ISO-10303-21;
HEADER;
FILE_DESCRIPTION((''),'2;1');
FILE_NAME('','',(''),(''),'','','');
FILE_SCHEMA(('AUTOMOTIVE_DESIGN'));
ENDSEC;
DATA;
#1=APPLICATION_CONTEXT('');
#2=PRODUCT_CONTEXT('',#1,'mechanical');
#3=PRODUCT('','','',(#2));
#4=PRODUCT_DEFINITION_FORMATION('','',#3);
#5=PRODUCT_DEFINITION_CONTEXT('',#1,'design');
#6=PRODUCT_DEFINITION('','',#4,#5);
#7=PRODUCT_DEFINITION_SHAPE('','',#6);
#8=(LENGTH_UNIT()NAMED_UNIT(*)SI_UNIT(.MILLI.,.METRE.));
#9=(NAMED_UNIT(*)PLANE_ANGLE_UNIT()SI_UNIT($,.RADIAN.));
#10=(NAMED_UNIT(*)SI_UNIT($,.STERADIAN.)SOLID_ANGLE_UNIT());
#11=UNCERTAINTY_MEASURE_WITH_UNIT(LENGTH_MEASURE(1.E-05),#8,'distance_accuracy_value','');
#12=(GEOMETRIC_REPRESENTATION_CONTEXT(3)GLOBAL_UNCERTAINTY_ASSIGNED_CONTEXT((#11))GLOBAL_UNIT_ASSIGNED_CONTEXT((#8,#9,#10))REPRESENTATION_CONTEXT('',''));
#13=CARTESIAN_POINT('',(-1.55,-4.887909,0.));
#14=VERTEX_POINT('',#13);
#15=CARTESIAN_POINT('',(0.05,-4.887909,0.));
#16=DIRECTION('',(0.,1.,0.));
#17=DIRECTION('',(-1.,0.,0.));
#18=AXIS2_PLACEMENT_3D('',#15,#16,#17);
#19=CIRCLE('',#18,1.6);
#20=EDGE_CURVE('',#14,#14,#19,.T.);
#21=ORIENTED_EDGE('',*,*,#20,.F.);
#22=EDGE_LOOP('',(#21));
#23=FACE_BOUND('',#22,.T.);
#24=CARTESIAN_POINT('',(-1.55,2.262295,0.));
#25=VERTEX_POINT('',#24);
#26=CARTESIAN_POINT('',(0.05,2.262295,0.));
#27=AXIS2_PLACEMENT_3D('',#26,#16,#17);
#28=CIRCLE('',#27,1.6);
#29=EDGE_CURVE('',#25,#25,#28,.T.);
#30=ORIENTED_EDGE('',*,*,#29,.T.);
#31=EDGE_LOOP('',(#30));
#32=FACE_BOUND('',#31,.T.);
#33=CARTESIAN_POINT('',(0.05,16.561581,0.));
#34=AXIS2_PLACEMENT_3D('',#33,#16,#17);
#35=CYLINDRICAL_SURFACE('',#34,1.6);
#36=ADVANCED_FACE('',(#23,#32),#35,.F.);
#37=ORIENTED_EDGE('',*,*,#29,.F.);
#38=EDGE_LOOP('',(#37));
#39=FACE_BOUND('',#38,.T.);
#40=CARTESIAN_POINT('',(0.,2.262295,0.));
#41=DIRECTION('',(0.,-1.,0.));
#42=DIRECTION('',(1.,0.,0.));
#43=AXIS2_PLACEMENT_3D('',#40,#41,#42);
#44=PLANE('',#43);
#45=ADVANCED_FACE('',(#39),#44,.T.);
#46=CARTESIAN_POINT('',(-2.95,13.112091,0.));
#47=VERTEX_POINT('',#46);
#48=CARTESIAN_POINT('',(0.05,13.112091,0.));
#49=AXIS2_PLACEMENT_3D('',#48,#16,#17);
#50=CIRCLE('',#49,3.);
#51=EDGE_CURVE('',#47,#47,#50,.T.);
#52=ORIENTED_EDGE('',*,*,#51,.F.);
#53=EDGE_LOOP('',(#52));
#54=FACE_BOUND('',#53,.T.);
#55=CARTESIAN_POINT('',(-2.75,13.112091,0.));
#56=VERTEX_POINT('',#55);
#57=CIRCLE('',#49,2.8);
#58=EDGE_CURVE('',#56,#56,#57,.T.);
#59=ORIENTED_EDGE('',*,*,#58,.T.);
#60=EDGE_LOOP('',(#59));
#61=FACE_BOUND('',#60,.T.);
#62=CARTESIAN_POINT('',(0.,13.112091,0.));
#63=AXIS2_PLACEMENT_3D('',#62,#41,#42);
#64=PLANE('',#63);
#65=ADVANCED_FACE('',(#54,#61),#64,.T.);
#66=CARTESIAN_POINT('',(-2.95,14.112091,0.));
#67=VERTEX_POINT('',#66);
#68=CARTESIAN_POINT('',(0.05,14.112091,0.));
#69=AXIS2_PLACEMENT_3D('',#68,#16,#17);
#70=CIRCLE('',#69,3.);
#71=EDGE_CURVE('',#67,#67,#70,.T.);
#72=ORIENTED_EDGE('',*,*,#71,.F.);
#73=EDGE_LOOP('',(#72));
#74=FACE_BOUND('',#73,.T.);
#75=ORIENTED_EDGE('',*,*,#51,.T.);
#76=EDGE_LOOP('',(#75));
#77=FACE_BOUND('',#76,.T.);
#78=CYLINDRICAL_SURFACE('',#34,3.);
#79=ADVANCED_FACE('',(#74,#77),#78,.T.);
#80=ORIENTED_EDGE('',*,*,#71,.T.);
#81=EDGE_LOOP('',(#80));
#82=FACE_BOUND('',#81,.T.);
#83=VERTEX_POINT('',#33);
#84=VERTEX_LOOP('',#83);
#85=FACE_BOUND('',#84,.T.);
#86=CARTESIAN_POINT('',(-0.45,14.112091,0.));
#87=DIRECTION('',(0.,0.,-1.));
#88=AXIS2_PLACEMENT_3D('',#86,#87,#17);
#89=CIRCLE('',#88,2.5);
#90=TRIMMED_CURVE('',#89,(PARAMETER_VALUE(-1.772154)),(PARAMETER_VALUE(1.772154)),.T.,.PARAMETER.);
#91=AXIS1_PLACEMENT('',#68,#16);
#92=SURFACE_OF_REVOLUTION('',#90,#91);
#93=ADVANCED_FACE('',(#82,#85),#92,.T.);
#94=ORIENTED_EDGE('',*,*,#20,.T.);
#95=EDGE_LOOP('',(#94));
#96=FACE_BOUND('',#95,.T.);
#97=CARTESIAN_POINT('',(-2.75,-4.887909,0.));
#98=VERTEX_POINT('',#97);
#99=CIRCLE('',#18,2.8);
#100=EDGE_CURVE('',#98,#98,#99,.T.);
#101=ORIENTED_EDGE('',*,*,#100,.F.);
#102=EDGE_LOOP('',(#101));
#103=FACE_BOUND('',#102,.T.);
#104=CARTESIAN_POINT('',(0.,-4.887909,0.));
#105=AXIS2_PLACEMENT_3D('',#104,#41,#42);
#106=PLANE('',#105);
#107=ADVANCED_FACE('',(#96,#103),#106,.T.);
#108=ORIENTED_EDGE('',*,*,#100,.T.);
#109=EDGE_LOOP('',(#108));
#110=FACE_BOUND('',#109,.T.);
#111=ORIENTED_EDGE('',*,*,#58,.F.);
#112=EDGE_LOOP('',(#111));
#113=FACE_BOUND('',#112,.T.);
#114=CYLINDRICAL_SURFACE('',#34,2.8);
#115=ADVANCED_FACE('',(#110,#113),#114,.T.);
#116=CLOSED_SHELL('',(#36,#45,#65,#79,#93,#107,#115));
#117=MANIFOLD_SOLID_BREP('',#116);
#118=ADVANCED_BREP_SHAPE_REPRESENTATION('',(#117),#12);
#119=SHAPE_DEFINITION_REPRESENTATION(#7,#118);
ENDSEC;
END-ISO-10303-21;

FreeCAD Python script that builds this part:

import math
import FreeCAD as App
import Part
import Sketcher
Q = App.Units.Quantity

doc = App.newDocument("Part")
params = doc.addObject("Spreadsheet::Sheet", "Params")
for row, (alias, value) in enumerate([
    ("sketch1_radius", "2.5 mm"),
    ("sketch1_height", "18 mm"),
    ("sketch1_height2", "1 mm"),
    ("sketch1_width", "0.2 mm"),
    ("sketch1_width2", "1.2 mm"),
    ("revolution_angle", "360 deg"),
], start=1):
    params.set(f"A{row}", alias)
    params.set(f"B{row}", "=" + value)
    params.setAlias(f"B{row}", alias)

body = doc.addObject("PartDesign::Body", "Body")

# Sketch on XY plane
sketch1 = doc.addObject("Sketcher::SketchObject", "Sketch")
body.addObject(sketch1)
sketch1.AttachmentSupport = (doc.XY_Plane, [""])
sketch1.MapMode = "FlatFace"
sketch1.addGeometry([
    Part.LineSegment(App.Vector(-2.95, 13.11, 0), App.Vector(-2.75, 13.11, 0)),  # 0
    Part.LineSegment(App.Vector(-2.75, 13.11, 0), App.Vector(-2.75, -4.89, 0)),  # 1
    Part.LineSegment(App.Vector(-2.75, -4.89, 0), App.Vector(-1.55, -4.89, 0)),  # 2
    Part.LineSegment(App.Vector(-1.55, -4.89, 0), App.Vector(-1.55, 2.26, 0)),  # 3
    Part.LineSegment(App.Vector(-1.55, 2.26, 0), App.Vector(0.05, 2.26, 0)),  # 4
    Part.LineSegment(App.Vector(0.05, 2.26, 0), App.Vector(0.05, 16.56, 0)),  # 5
    Part.ArcOfCircle(Part.Circle(App.Vector(-0.45, 14.11, 0), App.Vector(0, 0, 1), 2.5), math.radians(78), math.radians(180)),  # 6
    Part.LineSegment(App.Vector(-2.95, 14.11, 0), App.Vector(-2.95, 13.11, 0)),  # 7
], False)
sketch1.addGeometry(Part.LineSegment(App.Vector(0.05, 16.56, 0), App.Vector(0.05, -4.89, 0)), True)  # axis
sketch1.addConstraint([
    Sketcher.Constraint("Coincident", 0, 2, 1, 1),
    Sketcher.Constraint("Coincident", 1, 2, 2, 1),
    Sketcher.Constraint("Coincident", 2, 2, 3, 1),
    Sketcher.Constraint("Coincident", 3, 2, 4, 1),
    Sketcher.Constraint("Coincident", 4, 2, 5, 1),
    Sketcher.Constraint("Coincident", 5, 2, 6, 1),
    Sketcher.Constraint("Tangent", 6, 2, 7, 1),
    Sketcher.Constraint("Coincident", 7, 2, 0, 1),
    Sketcher.Constraint("Horizontal", 0),
    Sketcher.Constraint("Vertical", 1),
    Sketcher.Constraint("Horizontal", 2),
    Sketcher.Constraint("Vertical", 3),
    Sketcher.Constraint("Horizontal", 4),
    Sketcher.Constraint("Vertical", 5),
    Sketcher.Constraint("Vertical", 7),
    Sketcher.Constraint("Vertical", 8),
    Sketcher.Constraint("Coincident", 8, 1, 5, 2),
    Sketcher.Constraint("Horizontal", 2, 2, 8, 2),
    Sketcher.Constraint("Radius", 6, Q("2.5 mm")),
    Sketcher.Constraint("DistanceY", 1, 2, 1, 1, Q("18 mm")),
    Sketcher.Constraint("DistanceY", 7, 2, 7, 1, Q("1 mm")),
    Sketcher.Constraint("DistanceX", 0, 1, 0, 2, Q("0.2 mm")),
    Sketcher.Constraint("DistanceX", 2, 1, 2, 2, Q("1.2 mm")),
    Sketcher.Constraint("DistanceX", 4, 1, 4, 2, Q("1.6 mm")),
    Sketcher.Constraint("DistanceX", 6, 3, -1, 1, Q("0.45 mm")),
    Sketcher.Constraint("DistanceY", 3, 1, 3, 2, Q("7.150204 mm")),
    Sketcher.Constraint("DistanceY", -1, 1, 6, 3, Q("14.112091 mm")),
])
sketch1.setExpression("Constraints[18]", "Params.sketch1_radius")
sketch1.setExpression("Constraints[19]", "Params.sketch1_height")
sketch1.setExpression("Constraints[20]", "Params.sketch1_height2")
sketch1.setExpression("Constraints[21]", "Params.sketch1_width")
sketch1.setExpression("Constraints[22]", "Params.sketch1_width2")
revolution = doc.addObject("PartDesign::Revolution", "Revolution")
body.addObject(revolution)
revolution.Profile = sketch1
revolution.ReferenceAxis = (sketch1, ["Axis0"])
revolution.setExpression("Angle", "Params.revolution_angle")

doc.recompute()
